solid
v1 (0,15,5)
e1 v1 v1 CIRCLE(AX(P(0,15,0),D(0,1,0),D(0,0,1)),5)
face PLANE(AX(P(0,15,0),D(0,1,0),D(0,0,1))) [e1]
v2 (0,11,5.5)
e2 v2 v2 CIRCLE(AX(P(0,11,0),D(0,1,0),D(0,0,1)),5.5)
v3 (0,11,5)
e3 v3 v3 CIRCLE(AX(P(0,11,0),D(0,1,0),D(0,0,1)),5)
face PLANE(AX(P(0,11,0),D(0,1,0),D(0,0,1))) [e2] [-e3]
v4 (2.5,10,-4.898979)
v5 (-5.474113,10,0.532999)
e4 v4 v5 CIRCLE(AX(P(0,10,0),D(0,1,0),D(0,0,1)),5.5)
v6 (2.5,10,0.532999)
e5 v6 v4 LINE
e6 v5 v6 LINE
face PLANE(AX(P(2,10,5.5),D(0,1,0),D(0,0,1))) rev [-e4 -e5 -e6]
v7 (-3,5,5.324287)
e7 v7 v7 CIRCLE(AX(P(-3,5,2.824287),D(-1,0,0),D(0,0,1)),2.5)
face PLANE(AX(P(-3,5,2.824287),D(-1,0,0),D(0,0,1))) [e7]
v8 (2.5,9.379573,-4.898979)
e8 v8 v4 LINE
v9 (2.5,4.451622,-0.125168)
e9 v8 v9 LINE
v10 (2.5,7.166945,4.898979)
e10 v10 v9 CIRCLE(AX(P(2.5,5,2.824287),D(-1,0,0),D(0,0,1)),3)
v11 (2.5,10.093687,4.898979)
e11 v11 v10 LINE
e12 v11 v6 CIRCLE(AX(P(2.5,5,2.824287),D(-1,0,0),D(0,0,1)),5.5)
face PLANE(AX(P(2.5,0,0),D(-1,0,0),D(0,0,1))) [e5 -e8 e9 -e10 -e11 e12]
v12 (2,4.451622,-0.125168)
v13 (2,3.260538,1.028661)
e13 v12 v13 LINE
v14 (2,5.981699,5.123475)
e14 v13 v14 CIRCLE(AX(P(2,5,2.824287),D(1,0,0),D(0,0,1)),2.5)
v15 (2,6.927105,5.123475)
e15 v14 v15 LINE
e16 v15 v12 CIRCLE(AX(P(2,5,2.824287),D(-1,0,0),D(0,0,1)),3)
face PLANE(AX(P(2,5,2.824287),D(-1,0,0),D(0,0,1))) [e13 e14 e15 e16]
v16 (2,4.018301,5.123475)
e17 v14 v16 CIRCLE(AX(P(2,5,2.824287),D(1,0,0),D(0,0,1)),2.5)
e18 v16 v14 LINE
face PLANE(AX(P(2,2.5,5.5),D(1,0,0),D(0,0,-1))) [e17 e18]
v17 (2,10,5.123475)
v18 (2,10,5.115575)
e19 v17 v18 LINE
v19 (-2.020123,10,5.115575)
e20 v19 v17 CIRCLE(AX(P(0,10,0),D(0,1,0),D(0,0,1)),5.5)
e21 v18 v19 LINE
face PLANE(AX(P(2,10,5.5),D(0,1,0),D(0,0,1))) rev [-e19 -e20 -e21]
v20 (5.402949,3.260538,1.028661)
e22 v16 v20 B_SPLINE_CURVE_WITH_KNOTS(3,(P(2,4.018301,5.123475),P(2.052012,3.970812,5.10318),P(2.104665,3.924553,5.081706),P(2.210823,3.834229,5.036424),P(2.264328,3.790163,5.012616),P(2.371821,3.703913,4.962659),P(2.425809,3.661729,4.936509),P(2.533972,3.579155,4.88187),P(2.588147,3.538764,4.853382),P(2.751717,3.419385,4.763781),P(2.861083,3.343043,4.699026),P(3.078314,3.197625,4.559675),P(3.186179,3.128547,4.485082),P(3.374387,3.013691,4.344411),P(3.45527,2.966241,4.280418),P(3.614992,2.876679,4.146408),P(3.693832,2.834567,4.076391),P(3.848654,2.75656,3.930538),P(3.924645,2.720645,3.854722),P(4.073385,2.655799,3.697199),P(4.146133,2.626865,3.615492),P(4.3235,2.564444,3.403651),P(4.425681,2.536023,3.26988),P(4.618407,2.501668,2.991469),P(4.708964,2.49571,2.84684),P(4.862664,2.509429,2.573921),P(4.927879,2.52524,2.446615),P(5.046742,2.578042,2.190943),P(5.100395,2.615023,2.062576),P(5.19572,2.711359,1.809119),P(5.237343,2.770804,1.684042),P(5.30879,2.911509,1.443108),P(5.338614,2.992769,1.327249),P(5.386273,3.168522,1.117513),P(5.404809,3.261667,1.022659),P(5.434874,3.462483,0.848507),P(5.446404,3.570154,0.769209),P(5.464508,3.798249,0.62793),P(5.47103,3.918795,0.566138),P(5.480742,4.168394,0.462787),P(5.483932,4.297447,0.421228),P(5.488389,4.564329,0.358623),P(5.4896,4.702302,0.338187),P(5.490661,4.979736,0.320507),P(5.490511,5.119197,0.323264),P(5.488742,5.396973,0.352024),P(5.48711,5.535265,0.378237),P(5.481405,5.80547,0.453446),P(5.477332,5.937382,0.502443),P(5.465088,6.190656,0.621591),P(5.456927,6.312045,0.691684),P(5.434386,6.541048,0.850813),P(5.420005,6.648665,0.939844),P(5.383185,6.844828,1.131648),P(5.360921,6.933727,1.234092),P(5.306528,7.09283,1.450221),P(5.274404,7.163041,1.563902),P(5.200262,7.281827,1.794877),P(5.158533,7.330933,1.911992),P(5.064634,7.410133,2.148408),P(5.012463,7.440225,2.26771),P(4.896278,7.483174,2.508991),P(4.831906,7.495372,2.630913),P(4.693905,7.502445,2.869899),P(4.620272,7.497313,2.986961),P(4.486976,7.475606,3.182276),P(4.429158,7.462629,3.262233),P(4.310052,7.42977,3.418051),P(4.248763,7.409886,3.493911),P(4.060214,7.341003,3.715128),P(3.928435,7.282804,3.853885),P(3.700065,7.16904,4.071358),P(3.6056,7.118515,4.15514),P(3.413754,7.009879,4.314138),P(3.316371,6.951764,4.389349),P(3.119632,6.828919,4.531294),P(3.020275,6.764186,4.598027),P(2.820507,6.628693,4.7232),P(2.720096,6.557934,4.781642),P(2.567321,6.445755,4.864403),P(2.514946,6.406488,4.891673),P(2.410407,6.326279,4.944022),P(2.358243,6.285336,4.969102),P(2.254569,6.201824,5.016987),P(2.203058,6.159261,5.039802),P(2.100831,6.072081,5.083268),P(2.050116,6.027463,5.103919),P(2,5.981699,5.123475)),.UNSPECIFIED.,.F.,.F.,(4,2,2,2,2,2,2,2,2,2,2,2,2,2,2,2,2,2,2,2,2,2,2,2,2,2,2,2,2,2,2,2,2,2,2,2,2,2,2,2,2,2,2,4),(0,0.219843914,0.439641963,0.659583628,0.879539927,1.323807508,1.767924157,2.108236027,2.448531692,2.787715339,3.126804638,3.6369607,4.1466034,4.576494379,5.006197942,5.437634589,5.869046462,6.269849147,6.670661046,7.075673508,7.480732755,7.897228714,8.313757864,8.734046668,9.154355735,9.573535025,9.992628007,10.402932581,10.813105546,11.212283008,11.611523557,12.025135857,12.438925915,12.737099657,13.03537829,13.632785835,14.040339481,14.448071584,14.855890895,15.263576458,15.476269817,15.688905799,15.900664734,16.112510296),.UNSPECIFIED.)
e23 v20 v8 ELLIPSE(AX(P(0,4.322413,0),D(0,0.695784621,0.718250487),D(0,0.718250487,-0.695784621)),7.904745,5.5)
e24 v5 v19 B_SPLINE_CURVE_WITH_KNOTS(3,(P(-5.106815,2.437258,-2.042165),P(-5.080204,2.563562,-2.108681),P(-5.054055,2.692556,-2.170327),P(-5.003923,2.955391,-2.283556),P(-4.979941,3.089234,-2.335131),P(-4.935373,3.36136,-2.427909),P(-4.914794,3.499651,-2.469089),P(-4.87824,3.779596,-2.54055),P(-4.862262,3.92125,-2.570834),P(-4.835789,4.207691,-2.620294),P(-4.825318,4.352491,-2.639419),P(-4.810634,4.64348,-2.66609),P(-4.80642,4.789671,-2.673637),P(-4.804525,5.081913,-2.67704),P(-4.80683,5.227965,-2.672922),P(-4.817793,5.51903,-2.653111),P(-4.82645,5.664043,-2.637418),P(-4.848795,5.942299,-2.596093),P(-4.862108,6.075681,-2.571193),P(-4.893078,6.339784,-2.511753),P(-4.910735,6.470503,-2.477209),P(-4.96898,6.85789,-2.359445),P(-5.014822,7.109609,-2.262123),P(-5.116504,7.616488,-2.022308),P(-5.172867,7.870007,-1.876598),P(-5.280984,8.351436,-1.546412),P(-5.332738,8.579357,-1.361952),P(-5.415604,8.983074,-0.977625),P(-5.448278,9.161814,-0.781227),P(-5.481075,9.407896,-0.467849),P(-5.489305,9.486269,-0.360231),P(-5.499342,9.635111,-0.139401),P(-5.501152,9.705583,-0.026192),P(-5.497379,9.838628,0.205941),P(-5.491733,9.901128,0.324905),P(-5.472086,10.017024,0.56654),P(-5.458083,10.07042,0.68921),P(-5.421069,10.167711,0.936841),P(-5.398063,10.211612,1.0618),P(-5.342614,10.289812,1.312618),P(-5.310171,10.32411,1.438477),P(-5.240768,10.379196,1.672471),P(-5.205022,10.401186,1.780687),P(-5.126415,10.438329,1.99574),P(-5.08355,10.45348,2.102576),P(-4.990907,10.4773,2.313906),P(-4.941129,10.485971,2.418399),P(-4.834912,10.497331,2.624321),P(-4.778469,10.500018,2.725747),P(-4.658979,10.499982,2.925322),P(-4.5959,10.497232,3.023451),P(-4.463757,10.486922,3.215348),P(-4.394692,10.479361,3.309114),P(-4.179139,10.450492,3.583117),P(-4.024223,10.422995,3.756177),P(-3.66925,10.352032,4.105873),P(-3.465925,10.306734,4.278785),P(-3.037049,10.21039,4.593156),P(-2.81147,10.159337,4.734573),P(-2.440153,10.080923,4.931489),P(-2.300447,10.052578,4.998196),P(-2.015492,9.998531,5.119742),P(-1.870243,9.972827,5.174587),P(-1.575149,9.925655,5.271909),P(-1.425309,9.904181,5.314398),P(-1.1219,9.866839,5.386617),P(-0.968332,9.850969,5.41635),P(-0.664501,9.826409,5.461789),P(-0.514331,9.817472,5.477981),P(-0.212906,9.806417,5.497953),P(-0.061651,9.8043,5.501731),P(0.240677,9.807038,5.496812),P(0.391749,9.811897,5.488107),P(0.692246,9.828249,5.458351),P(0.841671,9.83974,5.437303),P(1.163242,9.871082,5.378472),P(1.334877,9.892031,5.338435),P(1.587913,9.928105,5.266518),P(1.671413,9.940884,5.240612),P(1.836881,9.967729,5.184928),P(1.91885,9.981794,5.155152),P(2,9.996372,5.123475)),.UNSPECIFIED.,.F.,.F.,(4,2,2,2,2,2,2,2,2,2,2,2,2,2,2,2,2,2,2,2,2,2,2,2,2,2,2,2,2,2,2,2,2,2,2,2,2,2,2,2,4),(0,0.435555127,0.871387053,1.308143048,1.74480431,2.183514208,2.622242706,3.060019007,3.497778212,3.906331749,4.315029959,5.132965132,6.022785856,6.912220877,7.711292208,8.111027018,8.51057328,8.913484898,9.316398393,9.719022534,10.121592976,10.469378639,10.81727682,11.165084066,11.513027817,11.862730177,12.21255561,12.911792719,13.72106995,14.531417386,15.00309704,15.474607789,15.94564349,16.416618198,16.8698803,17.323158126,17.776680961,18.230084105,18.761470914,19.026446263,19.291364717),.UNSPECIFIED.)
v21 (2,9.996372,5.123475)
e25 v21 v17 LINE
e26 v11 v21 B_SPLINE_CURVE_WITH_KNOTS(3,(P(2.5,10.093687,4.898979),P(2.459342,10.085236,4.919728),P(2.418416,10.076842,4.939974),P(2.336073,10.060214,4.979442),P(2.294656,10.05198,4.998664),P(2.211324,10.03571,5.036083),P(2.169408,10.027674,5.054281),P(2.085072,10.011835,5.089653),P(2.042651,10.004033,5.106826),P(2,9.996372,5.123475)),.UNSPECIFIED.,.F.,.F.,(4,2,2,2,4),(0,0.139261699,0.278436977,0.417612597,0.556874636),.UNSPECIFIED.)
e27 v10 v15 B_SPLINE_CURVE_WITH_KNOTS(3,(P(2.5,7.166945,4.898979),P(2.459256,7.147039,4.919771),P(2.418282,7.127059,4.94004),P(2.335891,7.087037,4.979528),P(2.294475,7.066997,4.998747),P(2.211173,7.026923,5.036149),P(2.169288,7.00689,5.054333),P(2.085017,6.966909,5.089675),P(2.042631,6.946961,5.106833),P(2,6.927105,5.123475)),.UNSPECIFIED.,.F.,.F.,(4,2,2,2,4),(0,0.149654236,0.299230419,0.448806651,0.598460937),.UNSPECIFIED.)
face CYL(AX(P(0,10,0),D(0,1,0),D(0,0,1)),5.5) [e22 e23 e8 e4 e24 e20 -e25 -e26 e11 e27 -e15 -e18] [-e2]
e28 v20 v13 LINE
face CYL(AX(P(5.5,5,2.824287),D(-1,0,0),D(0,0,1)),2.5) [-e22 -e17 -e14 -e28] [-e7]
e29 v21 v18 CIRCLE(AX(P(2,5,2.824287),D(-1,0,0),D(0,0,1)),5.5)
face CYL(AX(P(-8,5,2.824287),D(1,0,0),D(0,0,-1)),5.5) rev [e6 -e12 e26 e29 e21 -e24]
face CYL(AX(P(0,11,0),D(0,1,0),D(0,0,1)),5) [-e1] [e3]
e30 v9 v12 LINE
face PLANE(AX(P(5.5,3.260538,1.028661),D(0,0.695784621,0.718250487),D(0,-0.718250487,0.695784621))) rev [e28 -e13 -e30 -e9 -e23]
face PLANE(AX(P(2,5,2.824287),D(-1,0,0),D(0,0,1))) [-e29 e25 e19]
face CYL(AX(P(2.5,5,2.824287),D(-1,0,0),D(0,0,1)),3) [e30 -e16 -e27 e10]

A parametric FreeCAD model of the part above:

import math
import FreeCAD as App
import Part
import Sketcher

doc = App.newDocument("Part")
params = doc.addObject("Spreadsheet::Sheet", "Params")
for row, (alias, value) in enumerate([
    ("sketch1_width", "11 mm"),
    ("pad1_length", "15 mm"),
    ("sketch2_diameter", "10 mm"),
    ("pocket1_length", "4 mm"),
    ("sketch3_diameter", "11 mm"),
    ("pocket2_length", "1 mm"),
    ("sketch4_radius", "2.5 mm"),
    ("sketch5_radius", "2.5 mm"),
    ("sketch5_height", "11 mm"),
    ("pocket4_length", "7.5 mm"),
    ("pocket5_length", "2.5 mm"),
    ("sketch7_radius", "5.5 mm"),
    ("sketch8_diameter", "11 mm"),
    ("sketch8_diameter2", "5 mm"),
    ("pocket7_length", "5 mm"),
    ("pocket7_length2", "5 mm"),
    ("sketch9_radius", "3 mm"),
    ("sketch9_radius2", "5.5 mm"),
    ("pocket8_length", "0.5 mm"),
], start=1):
    params.set(f"A{row}", alias)
    params.set(f"B{row}", "=" + value)
    params.setAlias(f"B{row}", alias)

body = doc.addObject("PartDesign::Body", "Body")

sketch1 = body.newObject("Sketcher::SketchObject", "Sketch")
sketch1.AttachmentSupport = (doc.getObject("XZ_Plane"), [""])
sketch1.MapMode = "FlatFace"
sketch1.addGeometry([
    Part.LineSegment(App.Vector(-6, -6, 0), App.Vector(-6, 6, 0)),
    Part.LineSegment(App.Vector(-6, 6, 0), App.Vector(6, 6, 0)),
    Part.LineSegment(App.Vector(6, 6, 0), App.Vector(6, -6, 0)),
    Part.LineSegment(App.Vector(6, -6, 0), App.Vector(-6, -6, 0)),
], False)
sketch1.addConstraint([
    Sketcher.Constraint("Coincident", 0, 2, 1, 1),
    Sketcher.Constraint("Coincident", 1, 2, 2, 1),
    Sketcher.Constraint("Coincident", 2, 2, 3, 1),
    Sketcher.Constraint("Coincident", 3, 2, 0, 1),
    Sketcher.Constraint("Vertical", 0),
    Sketcher.Constraint("Horizontal", 1),
    Sketcher.Constraint("Vertical", 2),
    Sketcher.Constraint("Horizontal", 3),
    Sketcher.Constraint("Symmetric", 0, 2, 2, 2, -1, 1),
    Sketcher.Constraint("Equal", 3, 0),
    Sketcher.Constraint("DistanceX", 1, 1, 1, 2, 11.0),
])
sketch1.setExpression("Constraints[10]", "Params.sketch1_width")
pad1 = body.newObject("PartDesign::Pad", "Pad")
pad1.Profile = sketch1
pad1.setExpression("Length", "Params.pad1_length")
pad1.Reversed = True

sketch2 = body.newObject("Sketcher::SketchObject", "Sketch001")
sketch2.AttachmentSupport = (doc.getObject("XZ_Plane"), [""])
sketch2.MapMode = "FlatFace"
sketch2.AttachmentOffset = App.Placement(App.Vector(0, 0, -15), App.Rotation())
sketch2.addGeometry([
    Part.Circle(App.Vector(0, 0, 0), App.Vector(0, 0, 1), 12),
    Part.Circle(App.Vector(0, 0, 0), App.Vector(0, 0, 1), 5),
], False)
sketch2.addConstraint([
    Sketcher.Constraint("Coincident", 0, 3, -1, 1),
    Sketcher.Constraint("Coincident", 1, 3, -1, 1),
    Sketcher.Constraint("Diameter", 1, 10.0),
    Sketcher.Constraint("Diameter", 0, 23.053052),
])
sketch2.setExpression("Constraints[2]", "Params.sketch2_diameter")
pocket1 = body.newObject("PartDesign::Pocket", "Pocket")
pocket1.Profile = sketch2
pocket1.setExpression("Length", "Params.pocket1_length")
pocket1.Reversed = True

sketch3 = body.newObject("Sketcher::SketchObject", "Sketch002")
sketch3.AttachmentSupport = (doc.getObject("XZ_Plane"), [""])
sketch3.MapMode = "FlatFace"
sketch3.AttachmentOffset = App.Placement(App.Vector(0, 0, -11), App.Rotation())
sketch3.addGeometry([
    Part.Circle(App.Vector(0, 0, 0), App.Vector(0, 0, 1), 9),
    Part.Circle(App.Vector(0, 0, 0), App.Vector(0, 0, 1), 6),
], False)
sketch3.addConstraint([
    Sketcher.Constraint("Coincident", 0, 3, -1, 1),
    Sketcher.Constraint("Coincident", 1, 3, -1, 1),
    Sketcher.Constraint("Diameter", 1, 11.0),
    Sketcher.Constraint("Diameter", 0, 18.67109),
])
sketch3.setExpression("Constraints[2]", "Params.sketch3_diameter")
pocket2 = body.newObject("PartDesign::Pocket", "Pocket001")
pocket2.Profile = sketch3
pocket2.setExpression("Length", "Params.pocket2_length")
pocket2.Reversed = True

sketch4 = body.newObject("Sketcher::SketchObject", "Sketch003")
sketch4.AttachmentSupport = (doc.getObject("YZ_Plane"), [""])
sketch4.MapMode = "FlatFace"
sketch4.AttachmentOffset = App.Placement(App.Vector(0, 0, -5.5), App.Rotation())
sketch4.addGeometry([
    Part.LineSegment(App.Vector(3.3, 1, 0), App.Vector(10, -5.5, 0)),
    Part.LineSegment(App.Vector(10, -5.5, 0), App.Vector(12.6, -9.5, 0)),
    Part.LineSegment(App.Vector(12.6, -9.5, 0), App.Vector(-3.1, -10, 0)),
    Part.LineSegment(App.Vector(-3.1, -10, 0), App.Vector(-2.6, 13.1, 0)),
    Part.LineSegment(App.Vector(-2.6, 13.1, 0), App.Vector(10, 11.8, 0)),
    Part.LineSegment(App.Vector(10, 11.8, 0), App.Vector(10, 5.5, 0)),
    Part.LineSegment(App.Vector(10, 5.5, 0), App.Vector(4.9, 5.3, 0)),
    Part.ArcOfCircle(Part.Circle(App.Vector(5, 2.8, 0), App.Vector(0, 0, 1), 2.5), math.radians(92), math.radians(226)),
], False)
sketch4.addConstraint([
    Sketcher.Constraint("Coincident", 0, 2, 1, 1),
    Sketcher.Constraint("Coincident", 1, 2, 2, 1),
    Sketcher.Constraint("Coincident", 2, 2, 3, 1),
    Sketcher.Constraint("Coincident", 3, 2, 4, 1),
    Sketcher.Constraint("Coincident", 4, 2, 5, 1),
    Sketcher.Constraint("Coincident", 5, 2, 6, 1),
    Sketcher.Constraint("Tangent", 6, 2, 7, 1),
    Sketcher.Constraint("Tangent", 7, 2, 0, 1),
    Sketcher.Constraint("Vertical", 5),
    Sketcher.Constraint("Symmetric", 0, 2, 5, 2, -1),
    Sketcher.Constraint("Parallel", 2, 6),
    Sketcher.Constraint("Radius", 7, 2.5),
    Sketcher.Constraint("DistanceX", -1, 1, 7, 3, 5.0),
    Sketcher.Constraint("DistanceX", -1, 1, 0, 2, 10.0),
    Sketcher.Constraint("DistanceY", 0, 2, 5, 2, 11.0),
    Sketcher.Constraint("Distance", 2, 15.621402),
    Sketcher.Constraint("DistanceY", 2, 2, 4, 2, 21.789801),
    Sketcher.Constraint("Distance", 4, 12.63779),
    Sketcher.Constraint("Distance", 6, 5.090132),
    Sketcher.Constraint("DistanceY", 5, 2, 5, 1, 6.293537),
    Sketcher.Constraint("DistanceX", -1, 1, 1, 2, 12.560239),
    Sketcher.Constraint("DistanceY", 1, 2, 3, 2, 22.52966),
])
sketch4.setExpression("Constraints[11]", "Params.sketch4_radius")
pocket3 = body.newObject("PartDesign::Pocket", "Pocket002")
pocket3.Profile = sketch4
pocket3.Type = "ThroughAll"
pocket3.Reversed = True

sketch5 = body.newObject("Sketcher::SketchObject", "Sketch004")
sketch5.AttachmentSupport = (doc.getObject("YZ_Plane"), [""])
sketch5.MapMode = "FlatFace"
sketch5.AttachmentOffset = App.Placement(App.Vector(0, 0, -5.5), App.Rotation())
sketch5.addGeometry([
    Part.LineSegment(App.Vector(4.9, 5.3, 0), App.Vector(10, 5.5, 0)),
    Part.LineSegment(App.Vector(10, 5.5, 0), App.Vector(10, -5.5, 0)),
    Part.LineSegment(App.Vector(10, -5.5, 0), App.Vector(3.3, 1, 0)),
    Part.ArcOfCircle(Part.Circle(App.Vector(5, 2.8, 0), App.Vector(0, 0, 1), 2.5), math.radians(-134), math.radians(92)),
], False)
sketch5.addConstraint([
    Sketcher.Constraint("Coincident", 0, 2, 1, 1),
    Sketcher.Constraint("Coincident", 1, 2, 2, 1),
    Sketcher.Constraint("Tangent", 2, 2, 3, 1),
    Sketcher.Constraint("Tangent", 3, 2, 0, 1),
    Sketcher.Constraint("Vertical", 1),
    Sketcher.Constraint("Radius", 3, 2.5),
    Sketcher.Constraint("DistanceY", 1, 2, 1, 1, 11.0),
    Sketcher.Constraint("DistanceX", -1, 1, 3, 3, 5.0),
    Sketcher.Constraint("DistanceX", -1, 1, 0, 2, 10.0),
    Sketcher.Constraint("DistanceY", -1, 1, 0, 2, 5.5),
    Sketcher.Constraint("Distance", 0, 5.090132),
])
sketch5.setExpression("Constraints[5]", "Params.sketch5_radius")
sketch5.setExpression("Constraints[6]", "Params.sketch5_height")
pocket4 = body.newObject("PartDesign::Pocket", "Pocket003")
pocket4.Profile = sketch5
pocket4.setExpression("Length", "Params.pocket4_length")
pocket4.Reversed = True

sketch6 = body.newObject("Sketcher::SketchObject", "Sketch005")
sketch6.AttachmentSupport = (doc.getObject("YZ_Plane"), [""])
sketch6.MapMode = "FlatFace"
sketch6.AttachmentOffset = App.Placement(App.Vector(0, 0, -5.5), App.Rotation())
sketch6.addGeometry(Part.Circle(App.Vector(5, 2.8, 0), App.Vector(0, 0, 1), 4.2), False)
sketch6.addConstraint([
    Sketcher.Constraint("DistanceX", -1, 1, 0, 3, 5.0),
    Sketcher.Constraint("Diameter", 0, 8.413639),
    Sketcher.Constraint("DistanceY", -1, 1, 0, 3, 2.824287),
])
pocket5 = body.newObject("PartDesign::Pocket", "Pocket004")
pocket5.Profile = sketch6
pocket5.setExpression("Length", "Params.pocket5_length")
pocket5.Reversed = True

sketch7 = body.newObject("Sketcher::SketchObject", "Sketch006")
sketch7.AttachmentSupport = (doc.getObject("XZ_Plane"), [""])
sketch7.MapMode = "FlatFace"
sketch7.AttachmentOffset = App.Placement(App.Vector(0, 0, -11), App.Rotation())
sketch7.addGeometry([
    Part.Circle(App.Vector(0, 0, 0), App.Vector(0, 0, 1), 8.74),
    Part.LineSegment(App.Vector(2, 5.12, 0), App.Vector(2, 5.5, 0)),
    Part.LineSegment(App.Vector(2, 5.5, 0), App.Vector(-3.37, 5.5, 0)),
    Part.LineSegment(App.Vector(-3.37, 5.5, 0), App.Vector(-3.37, 4.34, 0)),
    Part.ArcOfCircle(Part.Circle(App.Vector(0, 0, 0), App.Vector(0, 0, 1), 5.5), math.radians(128), math.radians(429)),
], False)
sketch7.addConstraint([
    Sketcher.Constraint("Coincident", 1, 2, 2, 1),
    Sketcher.Constraint("Coincident", 2, 2, 3, 1),
    Sketcher.Constraint("Coincident", 3, 2, 4, 1),
    Sketcher.Constraint("Coincident", 4, 2, 1, 1),
    Sketcher.Constraint("Vertical", 1),
    Sketcher.Constraint("Horizontal", 2),
    Sketcher.Constraint("Vertical", 3),
    Sketcher.Constraint("Coincident", 0, 3, -1, 1),
    Sketcher.Constraint("Coincident", 4, 3, -1, 1),
    Sketcher.Constraint("Radius", 4, 5.5),
    Sketcher.Constraint("DistanceX", -1, 1, 1, 2, 2.0),
    Sketcher.Constraint("DistanceY", -1, 1, 1, 2, 5.5),
    Sketcher.Constraint("Diameter", 0, 17.48755),
    Sketcher.Constraint("DistanceX", 2, 2, 2, 1, 5.374127),
])
sketch7.setExpression("Constraints[9]", "Params.sketch7_radius")
pocket6 = body.newObject("PartDesign::Pocket", "Pocket005")
pocket6.Profile = sketch7
pocket6.Type = "ThroughAll"
pocket6.Reversed = True

sketch8 = body.newObject("Sketcher::SketchObject", "Sketch007")
sketch8.AttachmentSupport = (doc.getObject("YZ_Plane"), [""])
sketch8.MapMode = "FlatFace"
sketch8.AttachmentOffset = App.Placement(App.Vector(0, 0, -3), App.Rotation())
sketch8.addGeometry([
    Part.Circle(App.Vector(5, 2.8, 0), App.Vector(0, 0, 1), 5.5),
    Part.Circle(App.Vector(5, 2.8, 0), App.Vector(0, 0, 1), 2.5),
], False)
sketch8.addConstraint([
    Sketcher.Constraint("Coincident", 1, 3, 0, 3),
    Sketcher.Constraint("Diameter", 0, 11.0),
    Sketcher.Constraint("Diameter", 1, 5.0),
    Sketcher.Constraint("DistanceX", -1, 1, 0, 3, 5.0),
    Sketcher.Constraint("DistanceY", -1, 1, 0, 3, 2.824287),
])
sketch8.setExpression("Constraints[1]", "Params.sketch8_diameter")
sketch8.setExpression("Constraints[2]", "Params.sketch8_diameter2")
pocket7 = body.newObject("PartDesign::Pocket", "Pocket006")
pocket7.Profile = sketch8
pocket7.Type = "TwoLengths"
pocket7.setExpression("Length", "Params.pocket7_length")
pocket7.setExpression("Length2", "Params.pocket7_length2")

sketch9 = body.newObject("Sketcher::SketchObject", "Sketch008")
sketch9.AttachmentSupport = (doc.getObject("YZ_Plane"), [""])
sketch9.MapMode = "FlatFace"
sketch9.AttachmentOffset = App.Placement(App.Vector(0, 0, 2), App.Rotation())
sketch9.addGeometry([
    Part.ArcOfCircle(Part.Circle(App.Vector(5, 2.824, 0), App.Vector(0, 0, 1), 3), math.radians(-101), math.radians(50)),
    Part.LineSegment(App.Vector(6.927, 5.123, 0), App.Vector(9.996, 5.123, 0)),
    Part.ArcOfCircle(Part.Circle(App.Vector(4.999, 2.824, 0), App.Vector(0, 0, 1), 5.501), math.radians(24.62), math.radians(24.71)),
    Part.ArcOfCircle(Part.Circle(App.Vector(5, 2.824, 0), App.Vector(0, 0, 1), 5.5), math.radians(-25), math.radians(25)),
    Part.LineSegment(App.Vector(10, 0.533, 0), App.Vector(10, -5.123, 0)),
    Part.LineSegment(App.Vector(10, -5.123, 0), App.Vector(9.611, -5.123, 0)),
    Part.LineSegment(App.Vector(9.611, -5.123, 0), App.Vector(6.779, -2.38, 0)),
    Part.LineSegment(App.Vector(6.779, -2.38, 0), App.Vector(4.452, -0.125, 0)),
], False)
sketch9.addConstraint([
    Sketcher.Constraint("Coincident", 0, 2, 1, 1),
    Sketcher.Constraint("Coincident", 1, 2, 2, 2),
    Sketcher.Constraint("Tangent", 2, 1, 3, 2),
    Sketcher.Constraint("Coincident", 3, 1, 4, 1),
    Sketcher.Constraint("Coincident", 4, 2, 5, 1),
    Sketcher.Constraint("Coincident", 5, 2, 6, 1),
    Sketcher.Constraint("Coincident", 6, 2, 7, 1),
    Sketcher.Constraint("Coincident", 7, 2, 0, 1),
    Sketcher.Constraint("Horizontal", 1),
    Sketcher.Constraint("Vertical", 4),
    Sketcher.Constraint("Horizontal", 5),
    Sketcher.Constraint("Coincident", 3, 3, 0, 3),
    Sketcher.Constraint("Parallel", 6, 7),
    Sketcher.Constraint("Vertical", 2, 1, 3, 1),
    Sketcher.Constraint("Radius", 0, 3.0),
    Sketcher.Constraint("Radius", 3, 5.5),
    Sketcher.Constraint("DistanceX", -1, 1, 0, 3, 5.0),
    Sketcher.Constraint("DistanceX", -1, 1, 2, 1, 10.0),
    Sketcher.Constraint("DistanceY", -1, 1, 3, 1, 0.532999),
    Sketcher.Constraint("Radius", 2, 5.500712),
    Sketcher.Constraint("DistanceY", 2, 1, 1, 2, 0.007901),
    Sketcher.Constraint("DistanceY", 5, 2, 6, 2, 2.743501),
    Sketcher.Constraint("DistanceX", 5, 2, 5, 1, 0.388682),
    Sketcher.Constraint("DistanceY", 4, 2, 4, 1, 5.656474),
    Sketcher.Constraint("DistanceX", 2, 3, 6, 2, 1.77988),
])
sketch9.setExpression("Constraints[14]", "Params.sketch9_radius")
sketch9.setExpression("Constraints[15]", "Params.sketch9_radius2")
pocket8 = body.newObject("PartDesign::Pocket", "Pocket007")
pocket8.Profile = sketch9
pocket8.setExpression("Length", "Params.pocket8_length")
pocket8.Reversed = True

doc.recompute()
